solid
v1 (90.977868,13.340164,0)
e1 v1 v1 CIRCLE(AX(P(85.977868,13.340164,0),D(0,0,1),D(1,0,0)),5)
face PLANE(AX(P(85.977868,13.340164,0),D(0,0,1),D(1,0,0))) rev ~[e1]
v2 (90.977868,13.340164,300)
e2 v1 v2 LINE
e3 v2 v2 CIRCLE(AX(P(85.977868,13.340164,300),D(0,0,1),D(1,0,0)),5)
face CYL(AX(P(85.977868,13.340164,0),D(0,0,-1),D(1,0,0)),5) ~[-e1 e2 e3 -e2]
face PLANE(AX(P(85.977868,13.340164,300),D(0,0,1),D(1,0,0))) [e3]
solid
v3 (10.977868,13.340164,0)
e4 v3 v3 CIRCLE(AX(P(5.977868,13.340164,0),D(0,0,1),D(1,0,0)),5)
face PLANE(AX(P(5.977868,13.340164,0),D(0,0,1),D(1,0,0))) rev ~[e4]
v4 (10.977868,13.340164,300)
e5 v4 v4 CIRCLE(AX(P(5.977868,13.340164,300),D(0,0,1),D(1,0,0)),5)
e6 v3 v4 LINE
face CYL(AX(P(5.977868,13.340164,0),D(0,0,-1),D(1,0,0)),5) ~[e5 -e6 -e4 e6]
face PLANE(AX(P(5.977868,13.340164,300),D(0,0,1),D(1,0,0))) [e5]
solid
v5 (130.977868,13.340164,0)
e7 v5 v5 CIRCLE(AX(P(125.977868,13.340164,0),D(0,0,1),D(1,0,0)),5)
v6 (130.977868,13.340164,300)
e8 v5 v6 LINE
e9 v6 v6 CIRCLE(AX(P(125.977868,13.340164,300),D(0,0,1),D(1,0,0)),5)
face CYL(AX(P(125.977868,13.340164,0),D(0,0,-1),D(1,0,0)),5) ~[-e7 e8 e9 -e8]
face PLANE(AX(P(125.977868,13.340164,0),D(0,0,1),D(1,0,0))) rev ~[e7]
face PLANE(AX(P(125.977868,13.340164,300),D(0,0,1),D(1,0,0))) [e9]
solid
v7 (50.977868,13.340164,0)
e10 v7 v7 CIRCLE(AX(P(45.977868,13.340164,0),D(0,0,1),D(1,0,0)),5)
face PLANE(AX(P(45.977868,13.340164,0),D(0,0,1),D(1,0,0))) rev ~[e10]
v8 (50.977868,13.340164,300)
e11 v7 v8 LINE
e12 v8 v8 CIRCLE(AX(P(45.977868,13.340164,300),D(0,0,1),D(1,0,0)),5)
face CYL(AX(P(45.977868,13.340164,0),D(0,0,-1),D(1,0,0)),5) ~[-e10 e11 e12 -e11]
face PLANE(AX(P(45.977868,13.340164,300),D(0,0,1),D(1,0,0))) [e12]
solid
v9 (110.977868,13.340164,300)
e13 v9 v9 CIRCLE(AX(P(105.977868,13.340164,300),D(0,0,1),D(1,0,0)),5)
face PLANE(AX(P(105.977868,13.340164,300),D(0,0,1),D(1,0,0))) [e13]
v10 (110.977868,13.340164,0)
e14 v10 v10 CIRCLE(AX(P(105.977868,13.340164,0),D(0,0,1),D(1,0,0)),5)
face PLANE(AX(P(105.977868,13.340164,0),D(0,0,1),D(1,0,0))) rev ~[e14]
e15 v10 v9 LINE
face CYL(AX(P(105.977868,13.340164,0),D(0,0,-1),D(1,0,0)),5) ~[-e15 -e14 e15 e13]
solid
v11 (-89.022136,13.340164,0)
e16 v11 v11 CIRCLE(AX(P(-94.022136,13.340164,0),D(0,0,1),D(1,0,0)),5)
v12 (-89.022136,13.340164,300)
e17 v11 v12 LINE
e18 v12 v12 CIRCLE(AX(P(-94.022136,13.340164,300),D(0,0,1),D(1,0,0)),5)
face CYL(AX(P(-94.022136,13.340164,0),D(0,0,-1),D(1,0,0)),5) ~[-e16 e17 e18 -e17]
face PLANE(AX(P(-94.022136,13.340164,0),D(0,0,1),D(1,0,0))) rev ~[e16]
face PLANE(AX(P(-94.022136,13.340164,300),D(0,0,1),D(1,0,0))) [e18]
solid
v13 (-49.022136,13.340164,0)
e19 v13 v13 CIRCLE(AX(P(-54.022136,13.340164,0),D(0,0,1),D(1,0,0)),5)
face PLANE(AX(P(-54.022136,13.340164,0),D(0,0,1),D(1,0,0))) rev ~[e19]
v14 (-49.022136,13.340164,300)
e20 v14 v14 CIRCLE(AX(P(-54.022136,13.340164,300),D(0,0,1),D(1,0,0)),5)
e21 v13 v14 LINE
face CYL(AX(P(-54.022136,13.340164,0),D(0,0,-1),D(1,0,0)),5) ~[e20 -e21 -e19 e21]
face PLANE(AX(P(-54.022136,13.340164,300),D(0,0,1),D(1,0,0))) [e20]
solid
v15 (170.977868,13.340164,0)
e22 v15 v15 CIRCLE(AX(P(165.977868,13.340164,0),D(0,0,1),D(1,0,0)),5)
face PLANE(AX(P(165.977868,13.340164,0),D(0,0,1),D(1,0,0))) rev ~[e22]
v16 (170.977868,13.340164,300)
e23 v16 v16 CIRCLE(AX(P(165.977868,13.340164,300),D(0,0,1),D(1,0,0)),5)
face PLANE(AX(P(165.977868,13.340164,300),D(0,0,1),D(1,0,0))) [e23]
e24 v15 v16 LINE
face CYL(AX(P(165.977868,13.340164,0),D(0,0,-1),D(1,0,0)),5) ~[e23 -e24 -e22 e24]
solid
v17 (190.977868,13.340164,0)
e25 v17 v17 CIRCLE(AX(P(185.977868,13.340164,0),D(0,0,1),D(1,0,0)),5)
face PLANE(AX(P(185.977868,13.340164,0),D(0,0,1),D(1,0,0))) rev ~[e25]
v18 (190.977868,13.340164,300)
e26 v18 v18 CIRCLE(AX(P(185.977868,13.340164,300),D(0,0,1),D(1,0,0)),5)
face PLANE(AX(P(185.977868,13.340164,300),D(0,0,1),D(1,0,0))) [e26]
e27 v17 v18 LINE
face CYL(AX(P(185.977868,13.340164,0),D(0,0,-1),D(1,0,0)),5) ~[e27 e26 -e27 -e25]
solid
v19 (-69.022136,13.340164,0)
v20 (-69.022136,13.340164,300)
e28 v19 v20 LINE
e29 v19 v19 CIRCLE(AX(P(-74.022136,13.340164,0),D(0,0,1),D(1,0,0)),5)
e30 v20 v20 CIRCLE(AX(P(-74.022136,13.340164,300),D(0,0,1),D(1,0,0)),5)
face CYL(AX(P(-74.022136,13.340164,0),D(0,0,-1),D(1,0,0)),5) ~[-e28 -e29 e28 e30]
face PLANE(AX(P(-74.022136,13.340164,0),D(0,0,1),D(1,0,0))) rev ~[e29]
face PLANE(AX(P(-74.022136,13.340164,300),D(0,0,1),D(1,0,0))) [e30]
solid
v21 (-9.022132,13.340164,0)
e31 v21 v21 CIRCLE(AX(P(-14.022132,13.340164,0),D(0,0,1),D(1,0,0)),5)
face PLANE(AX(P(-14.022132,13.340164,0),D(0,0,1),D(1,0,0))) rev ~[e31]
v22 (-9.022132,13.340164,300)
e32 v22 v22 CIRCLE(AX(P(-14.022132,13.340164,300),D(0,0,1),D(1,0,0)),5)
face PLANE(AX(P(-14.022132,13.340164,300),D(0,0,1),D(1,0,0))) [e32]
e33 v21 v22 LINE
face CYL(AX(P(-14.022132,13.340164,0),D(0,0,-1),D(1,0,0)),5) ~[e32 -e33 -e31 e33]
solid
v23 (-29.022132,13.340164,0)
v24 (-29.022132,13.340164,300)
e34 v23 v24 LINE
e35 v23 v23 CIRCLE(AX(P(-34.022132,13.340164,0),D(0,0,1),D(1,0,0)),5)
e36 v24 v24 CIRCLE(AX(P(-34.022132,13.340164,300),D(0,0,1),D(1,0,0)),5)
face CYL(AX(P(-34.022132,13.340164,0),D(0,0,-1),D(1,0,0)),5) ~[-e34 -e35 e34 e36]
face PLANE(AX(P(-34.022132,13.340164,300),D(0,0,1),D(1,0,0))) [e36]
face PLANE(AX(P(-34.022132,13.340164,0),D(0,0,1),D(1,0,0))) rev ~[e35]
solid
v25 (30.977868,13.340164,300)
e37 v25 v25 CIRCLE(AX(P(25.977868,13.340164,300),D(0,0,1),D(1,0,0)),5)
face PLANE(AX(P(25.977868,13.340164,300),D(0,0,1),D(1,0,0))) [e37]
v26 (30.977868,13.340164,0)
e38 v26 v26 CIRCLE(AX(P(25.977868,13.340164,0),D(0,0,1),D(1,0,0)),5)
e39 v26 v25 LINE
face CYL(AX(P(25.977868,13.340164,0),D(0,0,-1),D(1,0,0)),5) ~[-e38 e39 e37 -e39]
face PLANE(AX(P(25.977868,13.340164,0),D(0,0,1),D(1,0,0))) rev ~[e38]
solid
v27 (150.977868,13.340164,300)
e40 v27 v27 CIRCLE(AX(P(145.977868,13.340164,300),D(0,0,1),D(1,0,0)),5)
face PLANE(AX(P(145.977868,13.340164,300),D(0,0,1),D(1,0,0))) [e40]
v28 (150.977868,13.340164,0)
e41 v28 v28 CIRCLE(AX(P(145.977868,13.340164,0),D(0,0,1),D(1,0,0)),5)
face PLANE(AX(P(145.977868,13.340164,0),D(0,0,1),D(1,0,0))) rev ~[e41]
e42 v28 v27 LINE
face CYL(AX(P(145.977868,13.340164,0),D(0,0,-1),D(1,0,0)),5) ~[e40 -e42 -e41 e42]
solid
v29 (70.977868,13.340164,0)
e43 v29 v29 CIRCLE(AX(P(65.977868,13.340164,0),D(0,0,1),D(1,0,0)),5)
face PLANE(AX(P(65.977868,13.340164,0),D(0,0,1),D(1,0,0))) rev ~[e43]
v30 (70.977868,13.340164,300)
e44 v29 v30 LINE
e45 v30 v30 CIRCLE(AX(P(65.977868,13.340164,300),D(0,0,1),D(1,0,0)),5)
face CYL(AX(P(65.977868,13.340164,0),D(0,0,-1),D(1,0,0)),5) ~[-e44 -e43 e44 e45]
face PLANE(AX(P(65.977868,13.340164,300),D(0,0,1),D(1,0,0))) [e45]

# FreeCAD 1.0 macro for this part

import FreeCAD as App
import Part
import Sketcher
Q = App.Units.Quantity

doc = App.newDocument("Part")
params = doc.addObject("Spreadsheet::Sheet", "Params")
for row, (alias, value) in enumerate([
    ("sketch1_diameter", "10 mm"),
    ("pad1_length", "300 mm"),
], start=1):
    params.set(f"A{row}", alias)
    params.set(f"B{row}", "=" + value)
    params.setAlias(f"B{row}", alias)

body = doc.addObject("PartDesign::Body", "Body")
body.AllowCompound = True

# Sketch on XY plane
sketch1 = body.newObject("Sketcher::SketchObject", "Sketch")
sketch1.AttachmentSupport = (doc.getObject("XY_Plane"), [""])
sketch1.MapMode = "FlatFace"
sketch1.addGeometry(Part.Circle(App.Vector(-94, 13, 0), App.Vector(0, 0, 1), 5), False)
sketch1.addGeometry(Part.Circle(App.Vector(-74, 13, 0), App.Vector(0, 0, 1), 5), False)
sketch1.addGeometry(Part.Circle(App.Vector(-54, 13, 0), App.Vector(0, 0, 1), 5), False)
sketch1.addGeometry(Part.Circle(App.Vector(-34, 13, 0), App.Vector(0, 0, 1), 5), False)
sketch1.addGeometry(Part.Circle(App.Vector(-14, 13, 0), App.Vector(0, 0, 1), 5), False)
sketch1.addGeometry(Part.Circle(App.Vector(6, 13, 0), App.Vector(0, 0, 1), 5), False)
sketch1.addGeometry(Part.Circle(App.Vector(26, 13, 0), App.Vector(0, 0, 1), 5), False)
sketch1.addGeometry(Part.Circle(App.Vector(46, 13, 0), App.Vector(0, 0, 1), 5), False)
sketch1.addGeometry(Part.Circle(App.Vector(66, 13, 0), App.Vector(0, 0, 1), 5), False)
sketch1.addGeometry(Part.Circle(App.Vector(86, 13, 0), App.Vector(0, 0, 1), 5), False)
sketch1.addGeometry(Part.Circle(App.Vector(106, 13, 0), App.Vector(0, 0, 1), 5), False)
sketch1.addGeometry(Part.Circle(App.Vector(126, 13, 0), App.Vector(0, 0, 1), 5), False)
sketch1.addGeometry(Part.Circle(App.Vector(146, 13, 0), App.Vector(0, 0, 1), 5), False)
sketch1.addGeometry(Part.Circle(App.Vector(166, 13, 0), App.Vector(0, 0, 1), 5), False)
sketch1.addGeometry(Part.Circle(App.Vector(186, 13, 0), App.Vector(0, 0, 1), 5), False)
sketch1.addConstraint(Sketcher.Constraint("Equal", 0, 1))
sketch1.addConstraint(Sketcher.Constraint("Equal", 1, 2))
sketch1.addConstraint(Sketcher.Constraint("Equal", 2, 3))
sketch1.addConstraint(Sketcher.Constraint("Equal", 3, 4))
sketch1.addConstraint(Sketcher.Constraint("Equal", 4, 5))
sketch1.addConstraint(Sketcher.Constraint("Equal", 5, 6))
sketch1.addConstraint(Sketcher.Constraint("Equal", 6, 7))
sketch1.addConstraint(Sketcher.Constraint("Equal", 7, 8))
sketch1.addConstraint(Sketcher.Constraint("Equal", 8, 9))
sketch1.addConstraint(Sketcher.Constraint("Equal", 9, 10))
sketch1.addConstraint(Sketcher.Constraint("Equal", 10, 11))
sketch1.addConstraint(Sketcher.Constraint("Equal", 11, 12))
sketch1.addConstraint(Sketcher.Constraint("Equal", 12, 13))
sketch1.addConstraint(Sketcher.Constraint("Equal", 13, 14))
sketch1.addConstraint(Sketcher.Constraint("Horizontal", 0, 3, 1, 3))
sketch1.addConstraint(Sketcher.Constraint("Horizontal", 1, 3, 2, 3))
sketch1.addConstraint(Sketcher.Constraint("Horizontal", 2, 3, 3, 3))
sketch1.addConstraint(Sketcher.Constraint("Horizontal", 3, 3, 4, 3))
sketch1.addConstraint(Sketcher.Constraint("Horizontal", 4, 3, 5, 3))
sketch1.addConstraint(Sketcher.Constraint("Horizontal", 5, 3, 6, 3))
sketch1.addConstraint(Sketcher.Constraint("Horizontal", 6, 3, 7, 3))
sketch1.addConstraint(Sketcher.Constraint("Horizontal", 7, 3, 8, 3))
sketch1.addConstraint(Sketcher.Constraint("Horizontal", 8, 3, 9, 3))
sketch1.addConstraint(Sketcher.Constraint("Horizontal", 9, 3, 10, 3))
sketch1.addConstraint(Sketcher.Constraint("Horizontal", 10, 3, 11, 3))
sketch1.addConstraint(Sketcher.Constraint("Horizontal", 11, 3, 12, 3))
sketch1.addConstraint(Sketcher.Constraint("Horizontal", 12, 3, 13, 3))
sketch1.addConstraint(Sketcher.Constraint("Horizontal", 13, 3, 14, 3))
sketch1.addConstraint(Sketcher.Constraint("Diameter", 0, Q("10 mm")))
sketch1.addConstraint(Sketcher.Constraint("DistanceX", 0, 3, 1, 3, Q("20 mm")))
sketch1.addConstraint(Sketcher.Constraint("DistanceX", 1, 3, 2, 3, Q("20 mm")))
sketch1.addConstraint(Sketcher.Constraint("DistanceX", 3, 3, 4, 3, Q("20 mm")))
sketch1.addConstraint(Sketcher.Constraint("DistanceX", 4, 3, 5, 3, Q("20 mm")))
sketch1.addConstraint(Sketcher.Constraint("DistanceX", 5, 3, 6, 3, Q("20 mm")))
sketch1.addConstraint(Sketcher.Constraint("DistanceX", 6, 3, 7, 3, Q("20 mm")))
sketch1.addConstraint(Sketcher.Constraint("DistanceX", 7, 3, 8, 3, Q("20 mm")))
sketch1.addConstraint(Sketcher.Constraint("DistanceX", 8, 3, 9, 3, Q("20 mm")))
sketch1.addConstraint(Sketcher.Constraint("DistanceX", 9, 3, 10, 3, Q("20 mm")))
sketch1.addConstraint(Sketcher.Constraint("DistanceX", 10, 3, 11, 3, Q("20 mm")))
sketch1.addConstraint(Sketcher.Constraint("DistanceX", 11, 3, 12, 3, Q("20 mm")))
sketch1.addConstraint(Sketcher.Constraint("DistanceX", 12, 3, 13, 3, Q("20 mm")))
sketch1.addConstraint(Sketcher.Constraint("DistanceX", 13, 3, 14, 3, Q("20 mm")))
sketch1.addConstraint(Sketcher.Constraint("DistanceX", 4, 3, -1, 1, Q("14.022132 mm")))
sketch1.addConstraint(Sketcher.Constraint("DistanceX", 0, 3, -1, 1, Q("94.022136 mm")))
sketch1.addConstraint(Sketcher.Constraint("DistanceY", -1, 1, 0, 3, Q("13.340164 mm")))
sketch1.setExpression("Constraints[28]", "Params.sketch1_diameter")
pad1 = body.newObject("PartDesign::Pad", "Pad")
pad1.Profile = sketch1
pad1.setExpression("Length", "Params.pad1_length")

doc.recompute()
